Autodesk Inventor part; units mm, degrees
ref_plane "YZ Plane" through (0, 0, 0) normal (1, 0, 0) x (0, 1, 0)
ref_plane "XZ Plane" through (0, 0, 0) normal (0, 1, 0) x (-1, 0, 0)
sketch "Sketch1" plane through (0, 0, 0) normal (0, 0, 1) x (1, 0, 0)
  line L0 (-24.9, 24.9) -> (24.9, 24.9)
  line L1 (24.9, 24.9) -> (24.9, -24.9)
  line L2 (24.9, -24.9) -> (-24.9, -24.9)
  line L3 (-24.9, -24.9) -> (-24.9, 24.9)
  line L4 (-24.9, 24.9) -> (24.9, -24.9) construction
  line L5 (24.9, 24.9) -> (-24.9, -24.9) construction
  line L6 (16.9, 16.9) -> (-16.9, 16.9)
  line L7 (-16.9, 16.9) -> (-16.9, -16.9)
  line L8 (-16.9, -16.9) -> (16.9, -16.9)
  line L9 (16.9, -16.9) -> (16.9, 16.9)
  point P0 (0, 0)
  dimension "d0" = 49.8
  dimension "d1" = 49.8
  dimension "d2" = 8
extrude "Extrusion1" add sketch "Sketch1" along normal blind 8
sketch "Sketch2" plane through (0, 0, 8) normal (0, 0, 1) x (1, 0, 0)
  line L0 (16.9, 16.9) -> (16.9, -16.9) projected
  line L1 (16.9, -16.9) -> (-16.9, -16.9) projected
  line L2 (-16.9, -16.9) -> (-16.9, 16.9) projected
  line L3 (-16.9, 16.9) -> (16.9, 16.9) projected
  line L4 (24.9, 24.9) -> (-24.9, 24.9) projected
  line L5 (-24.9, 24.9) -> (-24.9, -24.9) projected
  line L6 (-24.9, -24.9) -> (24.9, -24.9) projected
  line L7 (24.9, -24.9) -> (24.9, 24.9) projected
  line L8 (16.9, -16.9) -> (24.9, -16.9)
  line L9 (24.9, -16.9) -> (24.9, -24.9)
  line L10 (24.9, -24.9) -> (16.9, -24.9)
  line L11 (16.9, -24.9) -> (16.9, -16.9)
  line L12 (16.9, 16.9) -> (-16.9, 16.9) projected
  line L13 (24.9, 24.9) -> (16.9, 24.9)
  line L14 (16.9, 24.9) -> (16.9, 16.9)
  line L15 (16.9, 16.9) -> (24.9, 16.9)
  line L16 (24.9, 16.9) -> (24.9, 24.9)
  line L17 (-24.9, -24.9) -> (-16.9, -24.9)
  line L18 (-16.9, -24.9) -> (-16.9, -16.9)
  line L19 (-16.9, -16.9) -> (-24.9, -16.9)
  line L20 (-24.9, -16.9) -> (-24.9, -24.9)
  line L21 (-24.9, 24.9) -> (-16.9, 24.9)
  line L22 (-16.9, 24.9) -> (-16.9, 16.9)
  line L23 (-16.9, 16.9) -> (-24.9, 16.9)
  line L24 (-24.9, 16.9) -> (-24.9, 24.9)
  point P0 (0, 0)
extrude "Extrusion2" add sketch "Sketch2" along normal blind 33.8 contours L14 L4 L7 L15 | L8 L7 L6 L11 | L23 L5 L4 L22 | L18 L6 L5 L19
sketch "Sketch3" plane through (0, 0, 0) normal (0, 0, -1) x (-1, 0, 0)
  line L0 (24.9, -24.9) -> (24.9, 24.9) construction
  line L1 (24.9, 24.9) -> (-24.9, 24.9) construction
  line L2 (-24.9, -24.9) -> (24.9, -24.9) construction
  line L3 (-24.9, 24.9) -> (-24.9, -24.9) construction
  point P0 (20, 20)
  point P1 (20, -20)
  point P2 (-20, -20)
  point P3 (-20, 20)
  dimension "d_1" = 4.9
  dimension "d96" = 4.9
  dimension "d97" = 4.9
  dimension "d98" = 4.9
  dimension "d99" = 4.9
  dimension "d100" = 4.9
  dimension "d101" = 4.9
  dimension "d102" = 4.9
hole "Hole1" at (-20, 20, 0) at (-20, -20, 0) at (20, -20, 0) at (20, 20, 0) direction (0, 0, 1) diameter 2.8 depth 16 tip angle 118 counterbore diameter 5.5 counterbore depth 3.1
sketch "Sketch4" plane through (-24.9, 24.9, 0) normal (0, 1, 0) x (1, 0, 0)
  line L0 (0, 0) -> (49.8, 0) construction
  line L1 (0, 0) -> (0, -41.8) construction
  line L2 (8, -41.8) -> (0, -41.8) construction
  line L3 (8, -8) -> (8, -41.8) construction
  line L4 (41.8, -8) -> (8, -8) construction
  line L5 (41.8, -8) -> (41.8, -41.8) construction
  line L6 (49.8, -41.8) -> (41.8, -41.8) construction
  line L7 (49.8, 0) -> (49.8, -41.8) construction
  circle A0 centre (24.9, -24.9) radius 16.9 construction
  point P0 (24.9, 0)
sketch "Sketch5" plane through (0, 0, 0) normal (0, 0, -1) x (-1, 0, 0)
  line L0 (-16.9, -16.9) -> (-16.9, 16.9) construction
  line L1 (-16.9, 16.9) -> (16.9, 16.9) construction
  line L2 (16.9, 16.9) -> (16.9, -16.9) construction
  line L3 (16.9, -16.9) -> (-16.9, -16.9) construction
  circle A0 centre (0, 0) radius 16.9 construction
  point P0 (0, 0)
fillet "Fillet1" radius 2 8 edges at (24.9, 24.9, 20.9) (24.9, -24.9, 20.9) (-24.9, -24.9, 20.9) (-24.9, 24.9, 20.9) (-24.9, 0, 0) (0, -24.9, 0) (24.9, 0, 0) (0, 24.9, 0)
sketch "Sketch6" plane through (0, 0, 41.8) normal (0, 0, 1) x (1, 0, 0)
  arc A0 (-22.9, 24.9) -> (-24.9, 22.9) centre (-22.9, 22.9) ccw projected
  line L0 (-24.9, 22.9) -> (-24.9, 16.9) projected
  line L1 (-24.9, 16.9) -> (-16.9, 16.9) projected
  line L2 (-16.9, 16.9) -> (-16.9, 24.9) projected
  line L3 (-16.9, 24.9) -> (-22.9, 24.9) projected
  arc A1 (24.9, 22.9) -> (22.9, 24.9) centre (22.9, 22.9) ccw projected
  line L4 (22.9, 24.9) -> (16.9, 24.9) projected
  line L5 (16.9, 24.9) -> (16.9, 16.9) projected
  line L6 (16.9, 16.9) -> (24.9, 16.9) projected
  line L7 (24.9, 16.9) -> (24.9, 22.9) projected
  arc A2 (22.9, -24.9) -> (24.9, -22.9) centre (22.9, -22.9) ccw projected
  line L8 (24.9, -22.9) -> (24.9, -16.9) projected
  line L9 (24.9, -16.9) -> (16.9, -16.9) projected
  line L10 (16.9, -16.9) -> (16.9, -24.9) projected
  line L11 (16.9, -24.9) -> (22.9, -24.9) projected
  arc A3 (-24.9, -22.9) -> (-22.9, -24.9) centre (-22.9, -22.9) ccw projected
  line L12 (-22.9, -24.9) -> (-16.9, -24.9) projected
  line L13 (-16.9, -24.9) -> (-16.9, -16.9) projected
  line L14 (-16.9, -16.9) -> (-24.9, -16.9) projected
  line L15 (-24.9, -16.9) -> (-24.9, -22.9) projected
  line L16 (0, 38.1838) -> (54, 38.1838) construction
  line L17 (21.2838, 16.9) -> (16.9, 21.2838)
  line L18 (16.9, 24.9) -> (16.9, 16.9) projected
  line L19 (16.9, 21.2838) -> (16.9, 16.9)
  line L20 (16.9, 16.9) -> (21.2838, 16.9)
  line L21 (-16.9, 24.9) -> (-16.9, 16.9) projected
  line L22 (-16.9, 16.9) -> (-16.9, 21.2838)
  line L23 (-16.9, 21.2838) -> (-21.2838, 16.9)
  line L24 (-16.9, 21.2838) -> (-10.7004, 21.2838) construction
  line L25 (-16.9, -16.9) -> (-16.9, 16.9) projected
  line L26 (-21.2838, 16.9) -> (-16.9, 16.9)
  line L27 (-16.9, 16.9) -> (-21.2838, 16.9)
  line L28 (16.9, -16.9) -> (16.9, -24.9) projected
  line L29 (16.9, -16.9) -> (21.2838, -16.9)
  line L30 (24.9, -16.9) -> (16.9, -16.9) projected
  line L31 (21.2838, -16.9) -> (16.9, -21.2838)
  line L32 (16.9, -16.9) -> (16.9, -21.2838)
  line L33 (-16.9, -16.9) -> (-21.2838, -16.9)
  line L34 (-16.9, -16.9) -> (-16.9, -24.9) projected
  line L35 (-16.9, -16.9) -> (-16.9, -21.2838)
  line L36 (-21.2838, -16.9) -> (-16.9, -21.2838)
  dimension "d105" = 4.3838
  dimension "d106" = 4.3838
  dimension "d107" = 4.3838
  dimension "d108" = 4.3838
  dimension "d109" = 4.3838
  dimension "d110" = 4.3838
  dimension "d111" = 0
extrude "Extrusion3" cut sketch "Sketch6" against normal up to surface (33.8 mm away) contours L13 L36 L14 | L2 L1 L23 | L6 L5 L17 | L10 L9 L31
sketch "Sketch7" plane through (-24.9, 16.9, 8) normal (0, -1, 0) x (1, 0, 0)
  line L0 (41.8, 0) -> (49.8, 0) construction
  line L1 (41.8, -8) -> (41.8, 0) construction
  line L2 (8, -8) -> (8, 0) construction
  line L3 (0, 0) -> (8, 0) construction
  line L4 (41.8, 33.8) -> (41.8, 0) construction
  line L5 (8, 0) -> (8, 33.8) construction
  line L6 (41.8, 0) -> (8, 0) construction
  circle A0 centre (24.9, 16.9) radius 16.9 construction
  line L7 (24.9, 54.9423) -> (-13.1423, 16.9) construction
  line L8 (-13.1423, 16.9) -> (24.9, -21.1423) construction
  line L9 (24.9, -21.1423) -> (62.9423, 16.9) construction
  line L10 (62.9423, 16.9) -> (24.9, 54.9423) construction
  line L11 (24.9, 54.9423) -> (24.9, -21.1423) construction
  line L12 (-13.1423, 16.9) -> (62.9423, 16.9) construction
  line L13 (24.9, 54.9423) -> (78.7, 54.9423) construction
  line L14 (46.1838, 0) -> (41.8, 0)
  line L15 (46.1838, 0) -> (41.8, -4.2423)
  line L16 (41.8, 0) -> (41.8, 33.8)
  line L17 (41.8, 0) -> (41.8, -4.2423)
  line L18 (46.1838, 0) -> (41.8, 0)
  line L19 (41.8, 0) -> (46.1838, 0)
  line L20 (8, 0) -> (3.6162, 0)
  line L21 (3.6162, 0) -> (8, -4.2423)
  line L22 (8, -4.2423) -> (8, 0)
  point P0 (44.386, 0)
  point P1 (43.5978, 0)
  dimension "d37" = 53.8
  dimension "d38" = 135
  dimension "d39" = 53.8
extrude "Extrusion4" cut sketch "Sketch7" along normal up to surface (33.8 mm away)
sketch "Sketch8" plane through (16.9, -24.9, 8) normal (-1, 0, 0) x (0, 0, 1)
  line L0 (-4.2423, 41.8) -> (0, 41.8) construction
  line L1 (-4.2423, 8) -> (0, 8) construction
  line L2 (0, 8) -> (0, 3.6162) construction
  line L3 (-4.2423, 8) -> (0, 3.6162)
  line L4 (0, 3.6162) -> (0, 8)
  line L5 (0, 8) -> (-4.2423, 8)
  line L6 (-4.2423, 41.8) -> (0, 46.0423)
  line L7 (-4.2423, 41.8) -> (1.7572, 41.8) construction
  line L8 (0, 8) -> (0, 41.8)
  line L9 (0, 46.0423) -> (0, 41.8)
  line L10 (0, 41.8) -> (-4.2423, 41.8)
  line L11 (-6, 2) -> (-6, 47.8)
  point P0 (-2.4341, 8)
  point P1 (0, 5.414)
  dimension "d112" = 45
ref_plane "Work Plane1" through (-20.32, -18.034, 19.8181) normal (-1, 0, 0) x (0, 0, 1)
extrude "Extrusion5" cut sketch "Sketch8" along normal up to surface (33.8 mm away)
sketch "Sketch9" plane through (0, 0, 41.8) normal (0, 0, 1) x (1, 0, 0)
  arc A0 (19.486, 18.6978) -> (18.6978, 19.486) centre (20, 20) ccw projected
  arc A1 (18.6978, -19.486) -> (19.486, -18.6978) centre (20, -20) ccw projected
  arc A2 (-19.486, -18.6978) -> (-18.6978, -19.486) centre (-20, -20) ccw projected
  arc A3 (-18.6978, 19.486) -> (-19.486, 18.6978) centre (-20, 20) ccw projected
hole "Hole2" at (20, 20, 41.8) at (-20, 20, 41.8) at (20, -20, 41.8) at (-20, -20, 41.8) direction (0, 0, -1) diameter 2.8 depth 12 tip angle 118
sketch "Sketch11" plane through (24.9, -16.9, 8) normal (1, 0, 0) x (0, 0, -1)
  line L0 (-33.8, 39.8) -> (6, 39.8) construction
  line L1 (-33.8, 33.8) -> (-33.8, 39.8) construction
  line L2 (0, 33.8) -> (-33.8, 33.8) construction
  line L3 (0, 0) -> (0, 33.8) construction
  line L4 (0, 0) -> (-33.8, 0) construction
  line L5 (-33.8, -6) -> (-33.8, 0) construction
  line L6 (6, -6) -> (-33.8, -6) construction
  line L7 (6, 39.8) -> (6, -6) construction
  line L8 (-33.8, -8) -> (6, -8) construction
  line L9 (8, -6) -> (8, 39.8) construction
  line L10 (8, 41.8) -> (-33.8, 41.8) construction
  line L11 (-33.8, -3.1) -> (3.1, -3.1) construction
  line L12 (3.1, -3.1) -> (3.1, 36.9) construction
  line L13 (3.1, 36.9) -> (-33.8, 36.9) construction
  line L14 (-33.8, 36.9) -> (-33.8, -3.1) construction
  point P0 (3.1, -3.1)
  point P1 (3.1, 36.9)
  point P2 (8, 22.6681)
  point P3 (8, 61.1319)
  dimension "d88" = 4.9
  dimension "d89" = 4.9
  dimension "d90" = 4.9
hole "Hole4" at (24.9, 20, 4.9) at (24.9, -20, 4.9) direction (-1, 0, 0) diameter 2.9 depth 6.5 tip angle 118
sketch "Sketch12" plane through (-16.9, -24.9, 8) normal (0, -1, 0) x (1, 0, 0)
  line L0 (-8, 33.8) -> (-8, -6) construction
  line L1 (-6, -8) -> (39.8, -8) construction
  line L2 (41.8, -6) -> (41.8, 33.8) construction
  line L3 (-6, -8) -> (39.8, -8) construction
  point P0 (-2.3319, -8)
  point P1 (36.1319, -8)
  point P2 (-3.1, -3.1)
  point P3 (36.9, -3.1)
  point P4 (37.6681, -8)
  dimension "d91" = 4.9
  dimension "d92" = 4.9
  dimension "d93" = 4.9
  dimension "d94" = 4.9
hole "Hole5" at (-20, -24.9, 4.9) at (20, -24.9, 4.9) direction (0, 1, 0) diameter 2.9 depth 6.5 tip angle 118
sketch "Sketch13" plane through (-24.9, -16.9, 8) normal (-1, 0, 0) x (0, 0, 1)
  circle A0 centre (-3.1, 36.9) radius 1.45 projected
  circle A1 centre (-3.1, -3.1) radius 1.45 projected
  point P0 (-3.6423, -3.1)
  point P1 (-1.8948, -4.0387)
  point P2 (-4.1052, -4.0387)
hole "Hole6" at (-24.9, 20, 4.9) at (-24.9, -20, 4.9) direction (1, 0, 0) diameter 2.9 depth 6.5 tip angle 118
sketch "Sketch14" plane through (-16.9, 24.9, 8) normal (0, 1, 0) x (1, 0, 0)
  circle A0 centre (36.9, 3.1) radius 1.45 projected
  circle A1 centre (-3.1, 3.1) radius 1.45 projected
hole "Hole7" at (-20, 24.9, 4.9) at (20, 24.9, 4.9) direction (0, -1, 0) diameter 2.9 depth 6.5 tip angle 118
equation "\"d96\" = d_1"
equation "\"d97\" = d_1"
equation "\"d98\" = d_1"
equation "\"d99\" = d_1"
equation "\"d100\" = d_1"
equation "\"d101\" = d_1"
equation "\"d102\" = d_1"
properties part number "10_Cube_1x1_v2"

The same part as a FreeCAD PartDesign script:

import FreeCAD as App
import Part
import Sketcher
from FreeCAD import Vector
Q = App.Units.Quantity


def edges_at(feature, points):
    """Names of the edges that pass closest to the given points."""
    edges = feature.Shape.Edges
    near = lambda p: min(range(len(edges)), key=lambda i: edges[i].distToShape(Part.Vertex(*p))[0])
    return sorted({f"Edge{near(p) + 1}" for p in points})


def add_polygon(sketch, points):
    """Adds a closed chain of lines whose ends are joined by coincident constraints."""
    first, n = sketch.GeometryCount, len(points)
    for a, b in zip(points, points[1:] + points[:1]):
        sketch.addGeometry(Part.LineSegment(App.Vector(*a, 0), App.Vector(*b, 0)), False)
    for i in range(n):
        sketch.addConstraint(Sketcher.Constraint("Coincident", first + i, 2, first + (i + 1) % n, 1))

doc = App.newDocument("Part")
body = doc.addObject("PartDesign::Body", "Body")

# Sketch on XY plane
sketch1 = body.newObject("Sketcher::SketchObject", "Sketch")
sketch1.AttachmentSupport = (doc.getObject("XY_Plane"), [""])
sketch1.MapMode = "FlatFace"
add_polygon(sketch1, [(24.9, 24.9), (-24.9, 24.9), (-24.9, -24.9), (24.9, -24.9)])  # lines 0-3
add_polygon(sketch1, [(-16.9, 16.9), (16.9, 16.9), (16.9, -16.9), (-16.9, -16.9)])  # lines 4-7
sketch1.addConstraint(Sketcher.Constraint("Horizontal", 0))
sketch1.addConstraint(Sketcher.Constraint("Vertical", 1))
sketch1.addConstraint(Sketcher.Constraint("Horizontal", 2))
sketch1.addConstraint(Sketcher.Constraint("Vertical", 3))
sketch1.addConstraint(Sketcher.Constraint("Horizontal", 4))
sketch1.addConstraint(Sketcher.Constraint("Vertical", 5))
sketch1.addConstraint(Sketcher.Constraint("Horizontal", 6))
sketch1.addConstraint(Sketcher.Constraint("Vertical", 7))
sketch1.addConstraint(Sketcher.Constraint("Symmetric", 0, 2, 2, 2, -1, 1))
sketch1.addConstraint(Sketcher.Constraint("Symmetric", 4, 2, 6, 2, -1, 1))
sketch1.addConstraint(Sketcher.Constraint("Equal", 2, 1))
sketch1.addConstraint(Sketcher.Constraint("Equal", 6, 5))
sketch1.addConstraint(Sketcher.Constraint("DistanceX", 0, 2, 0, 1, 49.8))
sketch1.addConstraint(Sketcher.Constraint("DistanceX", 4, 2, 3, 2, 8.0))
pad1 = body.newObject("PartDesign::Pad", "Pad")
pad1.Profile = sketch1
pad1.Length = 8

# Sketch on XY plane
sketch2 = body.newObject("Sketcher::SketchObject", "Sketch001")
sketch2.AttachmentSupport = (doc.getObject("XY_Plane"), [""])
sketch2.MapMode = "FlatFace"
sketch2.AttachmentOffset = App.Placement(Vector(0, 0, 8), App.Rotation())
add_polygon(sketch2, [(16.9, 24.9), (16.9, 16.9), (24.9, 16.9), (24.9, 24.9)])  # lines 0-3
add_polygon(sketch2, [(24.9, -16.9), (16.9, -16.9), (16.9, -24.9), (24.9, -24.9)])  # lines 4-7
add_polygon(sketch2, [(-24.9, 16.9), (-16.9, 16.9), (-16.9, 24.9), (-24.9, 24.9)])  # lines 8-11
add_polygon(sketch2, [(-16.9, -24.9), (-16.9, -16.9), (-24.9, -16.9), (-24.9, -24.9)])  # lines 12-15
sketch2.addConstraint(Sketcher.Constraint("Vertical", 0))
sketch2.addConstraint(Sketcher.Constraint("Horizontal", 1))
sketch2.addConstraint(Sketcher.Constraint("Vertical", 2))
sketch2.addConstraint(Sketcher.Constraint("Horizontal", 3))
sketch2.addConstraint(Sketcher.Constraint("Horizontal", 4))
sketch2.addConstraint(Sketcher.Constraint("Vertical", 5))
sketch2.addConstraint(Sketcher.Constraint("Horizontal", 6))
sketch2.addConstraint(Sketcher.Constraint("Vertical", 7))
sketch2.addConstraint(Sketcher.Constraint("Horizontal", 8))
sketch2.addConstraint(Sketcher.Constraint("Vertical", 9))
sketch2.addConstraint(Sketcher.Constraint("Horizontal", 10))
sketch2.addConstraint(Sketcher.Constraint("Vertical", 11))
sketch2.addConstraint(Sketcher.Constraint("Vertical", 12))
sketch2.addConstraint(Sketcher.Constraint("Horizontal", 13))
sketch2.addConstraint(Sketcher.Constraint("Vertical", 14))
sketch2.addConstraint(Sketcher.Constraint("Horizontal", 15))
sketch2.addConstraint(Sketcher.Constraint("Symmetric", 4, 2, 8, 2, -1, 1))
sketch2.addConstraint(Sketcher.Constraint("Symmetric", 6, 2, 10, 2, -1, 1))
sketch2.addConstraint(Sketcher.Constraint("Symmetric", 0, 2, 12, 2, -1, 1))
sketch2.addConstraint(Sketcher.Constraint("Symmetric", 2, 2, 14, 2, -1, 1))
sketch2.addConstraint(Sketcher.Constraint("Symmetric", 0, 2, 8, 2, -2))
sketch2.addConstraint(Sketcher.Constraint("Symmetric", 2, 2, 10, 2, -2))
sketch2.addConstraint(Sketcher.Constraint("Equal", 15, 0))
sketch2.addConstraint(Sketcher.Constraint("DistanceX", 1, 1, 1, 2, 8.0))
sketch2.addConstraint(Sketcher.Constraint("DistanceX", -1, 1, 0, 2, 16.9))
sketch2.addConstraint(Sketcher.Constraint("DistanceY", -1, 1, 0, 2, 16.9))
pad2 = body.newObject("PartDesign::Pad", "Pad001")
pad2.Profile = sketch2
pad2.Length = 33.8

# Sketch on XY plane
sketch3 = body.newObject("Sketcher::SketchObject", "Sketch002")
sketch3.AttachmentSupport = (doc.getObject("XY_Plane"), [""])
sketch3.MapMode = "FlatFace"
sketch3.addGeometry(Part.Circle(Vector(-20, 20, 0), Vector(0, 0, 1), 1.4), False)
sketch3.addGeometry(Part.Circle(Vector(-20, -20, 0), Vector(0, 0, 1), 1.4), False)
sketch3.addGeometry(Part.Circle(Vector(20, -20, 0), Vector(0, 0, 1), 1.4), False)
sketch3.addGeometry(Part.Circle(Vector(20, 20, 0), Vector(0, 0, 1), 1.4), False)
sketch3.addConstraint(Sketcher.Constraint("Equal", 0, 1))
sketch3.addConstraint(Sketcher.Constraint("Equal", 1, 2))
sketch3.addConstraint(Sketcher.Constraint("Equal", 2, 3))
sketch3.addConstraint(Sketcher.Constraint("Symmetric", 0, 3, 2, 3, -1, 1))
sketch3.addConstraint(Sketcher.Constraint("Symmetric", 1, 3, 3, 3, -1, 1))
sketch3.addConstraint(Sketcher.Constraint("Symmetric", 1, 3, 2, 3, -2))
sketch3.addConstraint(Sketcher.Constraint("Diameter", 0, 2.8))
sketch3.addConstraint(Sketcher.Constraint("DistanceX", 0, 3, -1, 1, 20.0))
sketch3.addConstraint(Sketcher.Constraint("DistanceY", -1, 1, 0, 3, 20.0))
doc.recompute()
hole = body.newObject("PartDesign::Hole", "Hole")
hole.Profile = sketch3
hole.ThreadType = "None"
hole.Diameter = 2.8
hole.DepthType = "Dimension"
hole.Depth = 16
hole.DrillPoint = "Angled"
hole.DrillPointAngle = 118
hole.HoleCutType = "Counterbore"
hole.HoleCutDiameter = 5.5
hole.HoleCutDepth = 3.1
hole.Reversed = True
doc.recompute()

fillet = body.newObject("PartDesign::Fillet", "Fillet")
fillet.Base = (hole, edges_at(hole, [
    (24.9, 24.9, 20.9),
    (24.9, -24.9, 20.9),
    (-24.9, -24.9, 20.9),
    (-24.9, 24.9, 20.9),
    (-24.9, 0, 0),
    (0, -24.9, 0),
    (24.9, 0, 0),
    (0, 24.9, 0),
]))
fillet.Radius = 2

# Sketch on XY plane
sketch4 = body.newObject("Sketcher::SketchObject", "Sketch003")
sketch4.AttachmentSupport = (doc.getObject("XY_Plane"), [""])
sketch4.MapMode = "FlatFace"
sketch4.AttachmentOffset = App.Placement(Vector(0, 0, 41.8), App.Rotation())
add_polygon(sketch4, [(-16.9, -21.2838), (-16.9, -16.9), (-21.2838, -16.9)])  # lines 0-2
add_polygon(sketch4, [(-16.9, 16.9), (-16.9, 21.2838), (-21.2838, 16.9)])  # lines 3-5
add_polygon(sketch4, [(16.9, 16.9), (21.2838, 16.9), (16.9, 21.2838)])  # lines 6-8
add_polygon(sketch4, [(16.9, -16.9), (16.9, -21.2838), (21.2838, -16.9)])  # lines 9-11
sketch4.addConstraint(Sketcher.Constraint("Vertical", 0))
sketch4.addConstraint(Sketcher.Constraint("Horizontal", 1))
sketch4.addConstraint(Sketcher.Constraint("Vertical", 3))
sketch4.addConstraint(Sketcher.Constraint("Horizontal", 5))
sketch4.addConstraint(Sketcher.Constraint("Horizontal", 6))
sketch4.addConstraint(Sketcher.Constraint("Vertical", 8))
sketch4.addConstraint(Sketcher.Constraint("Vertical", 9))
sketch4.addConstraint(Sketcher.Constraint("Horizontal", 11))
sketch4.addConstraint(Sketcher.Constraint("Symmetric", 1, 2, 6, 2, -1, 1))
sketch4.addConstraint(Sketcher.Constraint("Symmetric", 2, 2, 7, 2, -1, 1))
sketch4.addConstraint(Sketcher.Constraint("Symmetric", 3, 2, 9, 2, -1, 1))
sketch4.addConstraint(Sketcher.Constraint("Symmetric", 4, 2, 10, 2, -1, 1))
sketch4.addConstraint(Sketcher.Constraint("Symmetric", 4, 2, 6, 2, -2))
sketch4.addConstraint(Sketcher.Constraint("Symmetric", 3, 2, 7, 2, -2))
sketch4.addConstraint(Sketcher.Constraint("Perpendicular", 2, 4))
sketch4.addConstraint(Sketcher.Constraint("DistanceX", 1, 2, 1, 1, 4.3838))
sketch4.addConstraint(Sketcher.Constraint("DistanceX", 0, 2, -1, 1, 16.9))
sketch4.addConstraint(Sketcher.Constraint("DistanceY", 0, 2, -1, 1, 16.9))
pocket1 = body.newObject("PartDesign::Pocket", "Pocket")
pocket1.Profile = sketch4
pocket1.Length = 33.8

# Sketch on XZ plane
sketch5 = body.newObject("Sketcher::SketchObject", "Sketch004")
sketch5.AttachmentSupport = (doc.getObject("XZ_Plane"), [""])
sketch5.MapMode = "FlatFace"
sketch5.AttachmentOffset = App.Placement(Vector(0, 0, -16.9), App.Rotation())
add_polygon(sketch5, [(16.9, 3.7577), (21.2838, 8), (16.9, 8)])  # lines 0-2
add_polygon(sketch5, [(-16.9, 3.7577), (-16.9, 8), (-21.2838, 8)])  # lines 3-5
sketch5.addConstraint(Sketcher.Constraint("Horizontal", 1))
sketch5.addConstraint(Sketcher.Constraint("Vertical", 2))
sketch5.addConstraint(Sketcher.Constraint("Vertical", 3))
sketch5.addConstraint(Sketcher.Constraint("Horizontal", 4))
sketch5.addConstraint(Sketcher.Constraint("Symmetric", 1, 2, 3, 2, -2))
sketch5.addConstraint(Sketcher.Constraint("Horizontal", 2, 2, 5, 2))
sketch5.addConstraint(Sketcher.Constraint("Equal", 1, 4))
sketch5.addConstraint(Sketcher.Constraint("DistanceY", -1, 1, 0, 2, 8.0))
sketch5.addConstraint(Sketcher.Constraint("DistanceX", -1, 1, 1, 2, 16.9))
sketch5.addConstraint(Sketcher.Constraint("Angle", 0, Q("44.0602 deg")))
sketch5.addConstraint(Sketcher.Constraint("DistanceX", 1, 2, 1, 1, 4.3838))
pocket2 = body.newObject("PartDesign::Pocket", "Pocket001")
pocket2.Profile = sketch5
pocket2.Length = 33.8
pocket2.Reversed = True

# Sketch on YZ plane
sketch6 = body.newObject("Sketcher::SketchObject", "Sketch005")
sketch6.AttachmentSupport = (doc.getObject("YZ_Plane"), [""])
sketch6.MapMode = "FlatFace"
sketch6.AttachmentOffset = App.Placement(Vector(0, 0, 16.9), App.Rotation())
add_polygon(sketch6, [(-16.9, 8), (-16.9, 3.7577), (-21.2838, 8)])  # lines 0-2
add_polygon(sketch6, [(16.9, 3.7577), (16.9, 8), (21.1423, 8)])  # lines 3-5
sketch6.addConstraint(Sketcher.Constraint("Vertical", 0))
sketch6.addConstraint(Sketcher.Constraint("Horizontal", 2))
sketch6.addConstraint(Sketcher.Constraint("Vertical", 3))
sketch6.addConstraint(Sketcher.Constraint("Horizontal", 4))
sketch6.addConstraint(Sketcher.Constraint("Symmetric", 2, 2, 3, 2, -2))
sketch6.addConstraint(Sketcher.Constraint("Horizontal", 0, 2, 5, 2))
sketch6.addConstraint(Sketcher.Constraint("Equal", 4, 0))
sketch6.addConstraint(Sketcher.Constraint("DistanceY", -1, 1, 1, 2, 8.0))
sketch6.addConstraint(Sketcher.Constraint("DistanceX", 0, 2, -1, 1, 16.9))
sketch6.addConstraint(Sketcher.Constraint("Angle", 1, Q("135.9398 deg")))
sketch6.addConstraint(Sketcher.Constraint("DistanceX", 2, 1, 2, 2, 4.3838))
pocket3 = body.newObject("PartDesign::Pocket", "Pocket002")
pocket3.Profile = sketch6
pocket3.Length = 33.8

# Sketch on XY plane
sketch7 = body.newObject("Sketcher::SketchObject", "Sketch006")
sketch7.AttachmentSupport = (doc.getObject("XY_Plane"), [""])
sketch7.MapMode = "FlatFace"
sketch7.AttachmentOffset = App.Placement(Vector(0, 0, 41.8), App.Rotation())
sketch7.addGeometry(Part.Circle(Vector(20, 20, 0), Vector(0, 0, 1), 1.4), False)
sketch7.addGeometry(Part.Circle(Vector(-20, 20, 0), Vector(0, 0, 1), 1.4), False)
sketch7.addGeometry(Part.Circle(Vector(20, -20, 0), Vector(0, 0, 1), 1.4), False)
sketch7.addGeometry(Part.Circle(Vector(-20, -20, 0), Vector(0, 0, 1), 1.4), False)
sketch7.addConstraint(Sketcher.Constraint("Equal", 0, 1))
sketch7.addConstraint(Sketcher.Constraint("Equal", 1, 2))
sketch7.addConstraint(Sketcher.Constraint("Equal", 2, 3))
sketch7.addConstraint(Sketcher.Constraint("Symmetric", 1, 3, 2, 3, -1, 1))
sketch7.addConstraint(Sketcher.Constraint("Symmetric", 0, 3, 3, 3, -1, 1))
sketch7.addConstraint(Sketcher.Constraint("Symmetric", 0, 3, 1, 3, -2))
sketch7.addConstraint(Sketcher.Constraint("Diameter", 0, 2.8))
sketch7.addConstraint(Sketcher.Constraint("DistanceX", -1, 1, 0, 3, 20.0))
sketch7.addConstraint(Sketcher.Constraint("DistanceY", -1, 1, 0, 3, 20.0))
doc.recompute()
hole2 = body.newObject("PartDesign::Hole", "Hole001")
hole2.Profile = sketch7
hole2.ThreadType = "None"
hole2.Diameter = 2.8
hole2.DepthType = "Dimension"
hole2.Depth = 12
hole2.DrillPoint = "Angled"
hole2.DrillPointAngle = 118

# Sketch on YZ plane
sketch8 = body.newObject("Sketcher::SketchObject", "Sketch007")
sketch8.AttachmentSupport = (doc.getObject("YZ_Plane"), [""])
sketch8.MapMode = "FlatFace"
sketch8.AttachmentOffset = App.Placement(Vector(0, 0, 24.9), App.Rotation())
sketch8.addGeometry(Part.Circle(Vector(20, 4.9, 0), Vector(0, 0, 1), 1.45), False)
sketch8.addGeometry(Part.Circle(Vector(-20, 4.9, 0), Vector(0, 0, 1), 1.45), False)
sketch8.addConstraint(Sketcher.Constraint("Equal", 0, 1))
sketch8.addConstraint(Sketcher.Constraint("Symmetric", 0, 3, 1, 3, -2))
sketch8.addConstraint(Sketcher.Constraint("Diameter", 0, 2.9))
sketch8.addConstraint(Sketcher.Constraint("DistanceX", -1, 1, 0, 3, 20.0))
sketch8.addConstraint(Sketcher.Constraint("DistanceY", -1, 1, 0, 3, 4.9))
doc.recompute()
hole3 = body.newObject("PartDesign::Hole", "Hole002")
hole3.Profile = sketch8
hole3.ThreadType = "None"
hole3.Diameter = 2.9
hole3.DepthType = "Dimension"
hole3.Depth = 6.5
hole3.DrillPoint = "Angled"
hole3.DrillPointAngle = 118

# Sketch on XZ plane
sketch9 = body.newObject("Sketcher::SketchObject", "Sketch008")
sketch9.AttachmentSupport = (doc.getObject("XZ_Plane"), [""])
sketch9.MapMode = "FlatFace"
sketch9.AttachmentOffset = App.Placement(Vector(0, 0, 24.9), App.Rotation())
sketch9.addGeometry(Part.Circle(Vector(-20, 4.9, 0), Vector(0, 0, 1), 1.45), False)
sketch9.addGeometry(Part.Circle(Vector(20, 4.9, 0), Vector(0, 0, 1), 1.45), False)
sketch9.addConstraint(Sketcher.Constraint("Equal", 0, 1))
sketch9.addConstraint(Sketcher.Constraint("Symmetric", 0, 3, 1, 3, -2))
sketch9.addConstraint(Sketcher.Constraint("Diameter", 0, 2.9))
sketch9.addConstraint(Sketcher.Constraint("DistanceX", 0, 3, -1, 1, 20.0))
sketch9.addConstraint(Sketcher.Constraint("DistanceY", -1, 1, 0, 3, 4.9))
doc.recompute()
hole4 = body.newObject("PartDesign::Hole", "Hole003")
hole4.Profile = sketch9
hole4.ThreadType = "None"
hole4.Diameter = 2.9
hole4.DepthType = "Dimension"
hole4.Depth = 6.5
hole4.DrillPoint = "Angled"
hole4.DrillPointAngle = 118

# Sketch on YZ plane
sketch10 = body.newObject("Sketcher::SketchObject", "Sketch009")
sketch10.AttachmentSupport = (doc.getObject("YZ_Plane"), [""])
sketch10.MapMode = "FlatFace"
sketch10.AttachmentOffset = App.Placement(Vector(0, 0, -24.9), App.Rotation())
sketch10.addGeometry(Part.Circle(Vector(20, 4.9, 0), Vector(0, 0, 1), 1.45), False)
sketch10.addGeometry(Part.Circle(Vector(-20, 4.9, 0), Vector(0, 0, 1), 1.45), False)
sketch10.addConstraint(Sketcher.Constraint("Equal", 0, 1))
sketch10.addConstraint(Sketcher.Constraint("Symmetric", 0, 3, 1, 3, -2))
sketch10.addConstraint(Sketcher.Constraint("Diameter", 0, 2.9))
sketch10.addConstraint(Sketcher.Constraint("DistanceX", -1, 1, 0, 3, 20.0))
sketch10.addConstraint(Sketcher.Constraint("DistanceY", -1, 1, 0, 3, 4.9))
doc.recompute()
hole5 = body.newObject("PartDesign::Hole", "Hole004")
hole5.Profile = sketch10
hole5.ThreadType = "None"
hole5.Diameter = 2.9
hole5.DepthType = "Dimension"
hole5.Depth = 6.5
hole5.DrillPoint = "Angled"
hole5.DrillPointAngle = 118
hole5.Reversed = True

# Sketch on XZ plane
sketch11 = body.newObject("Sketcher::SketchObject", "Sketch010")
sketch11.AttachmentSupport = (doc.getObject("XZ_Plane"), [""])
sketch11.MapMode = "FlatFace"
sketch11.AttachmentOffset = App.Placement(Vector(0, 0, -24.9), App.Rotation())
sketch11.addGeometry(Part.Circle(Vector(-20, 4.9, 0), Vector(0, 0, 1), 1.45), False)
sketch11.addGeometry(Part.Circle(Vector(20, 4.9, 0), Vector(0, 0, 1), 1.45), False)
sketch11.addConstraint(Sketcher.Constraint("Equal", 0, 1))
sketch11.addConstraint(Sketcher.Constraint("Symmetric", 0, 3, 1, 3, -2))
sketch11.addConstraint(Sketcher.Constraint("Diameter", 0, 2.9))
sketch11.addConstraint(Sketcher.Constraint("DistanceX", 0, 3, -1, 1, 20.0))
sketch11.addConstraint(Sketcher.Constraint("DistanceY", -1, 1, 0, 3, 4.9))
doc.recompute()
hole6 = body.newObject("PartDesign::Hole", "Hole005")
hole6.Profile = sketch11
hole6.ThreadType = "None"
hole6.Diameter = 2.9
hole6.DepthType = "Dimension"
hole6.Depth = 6.5
hole6.DrillPoint = "Angled"
hole6.DrillPointAngle = 118
hole6.Reversed = True

doc.recompute()
